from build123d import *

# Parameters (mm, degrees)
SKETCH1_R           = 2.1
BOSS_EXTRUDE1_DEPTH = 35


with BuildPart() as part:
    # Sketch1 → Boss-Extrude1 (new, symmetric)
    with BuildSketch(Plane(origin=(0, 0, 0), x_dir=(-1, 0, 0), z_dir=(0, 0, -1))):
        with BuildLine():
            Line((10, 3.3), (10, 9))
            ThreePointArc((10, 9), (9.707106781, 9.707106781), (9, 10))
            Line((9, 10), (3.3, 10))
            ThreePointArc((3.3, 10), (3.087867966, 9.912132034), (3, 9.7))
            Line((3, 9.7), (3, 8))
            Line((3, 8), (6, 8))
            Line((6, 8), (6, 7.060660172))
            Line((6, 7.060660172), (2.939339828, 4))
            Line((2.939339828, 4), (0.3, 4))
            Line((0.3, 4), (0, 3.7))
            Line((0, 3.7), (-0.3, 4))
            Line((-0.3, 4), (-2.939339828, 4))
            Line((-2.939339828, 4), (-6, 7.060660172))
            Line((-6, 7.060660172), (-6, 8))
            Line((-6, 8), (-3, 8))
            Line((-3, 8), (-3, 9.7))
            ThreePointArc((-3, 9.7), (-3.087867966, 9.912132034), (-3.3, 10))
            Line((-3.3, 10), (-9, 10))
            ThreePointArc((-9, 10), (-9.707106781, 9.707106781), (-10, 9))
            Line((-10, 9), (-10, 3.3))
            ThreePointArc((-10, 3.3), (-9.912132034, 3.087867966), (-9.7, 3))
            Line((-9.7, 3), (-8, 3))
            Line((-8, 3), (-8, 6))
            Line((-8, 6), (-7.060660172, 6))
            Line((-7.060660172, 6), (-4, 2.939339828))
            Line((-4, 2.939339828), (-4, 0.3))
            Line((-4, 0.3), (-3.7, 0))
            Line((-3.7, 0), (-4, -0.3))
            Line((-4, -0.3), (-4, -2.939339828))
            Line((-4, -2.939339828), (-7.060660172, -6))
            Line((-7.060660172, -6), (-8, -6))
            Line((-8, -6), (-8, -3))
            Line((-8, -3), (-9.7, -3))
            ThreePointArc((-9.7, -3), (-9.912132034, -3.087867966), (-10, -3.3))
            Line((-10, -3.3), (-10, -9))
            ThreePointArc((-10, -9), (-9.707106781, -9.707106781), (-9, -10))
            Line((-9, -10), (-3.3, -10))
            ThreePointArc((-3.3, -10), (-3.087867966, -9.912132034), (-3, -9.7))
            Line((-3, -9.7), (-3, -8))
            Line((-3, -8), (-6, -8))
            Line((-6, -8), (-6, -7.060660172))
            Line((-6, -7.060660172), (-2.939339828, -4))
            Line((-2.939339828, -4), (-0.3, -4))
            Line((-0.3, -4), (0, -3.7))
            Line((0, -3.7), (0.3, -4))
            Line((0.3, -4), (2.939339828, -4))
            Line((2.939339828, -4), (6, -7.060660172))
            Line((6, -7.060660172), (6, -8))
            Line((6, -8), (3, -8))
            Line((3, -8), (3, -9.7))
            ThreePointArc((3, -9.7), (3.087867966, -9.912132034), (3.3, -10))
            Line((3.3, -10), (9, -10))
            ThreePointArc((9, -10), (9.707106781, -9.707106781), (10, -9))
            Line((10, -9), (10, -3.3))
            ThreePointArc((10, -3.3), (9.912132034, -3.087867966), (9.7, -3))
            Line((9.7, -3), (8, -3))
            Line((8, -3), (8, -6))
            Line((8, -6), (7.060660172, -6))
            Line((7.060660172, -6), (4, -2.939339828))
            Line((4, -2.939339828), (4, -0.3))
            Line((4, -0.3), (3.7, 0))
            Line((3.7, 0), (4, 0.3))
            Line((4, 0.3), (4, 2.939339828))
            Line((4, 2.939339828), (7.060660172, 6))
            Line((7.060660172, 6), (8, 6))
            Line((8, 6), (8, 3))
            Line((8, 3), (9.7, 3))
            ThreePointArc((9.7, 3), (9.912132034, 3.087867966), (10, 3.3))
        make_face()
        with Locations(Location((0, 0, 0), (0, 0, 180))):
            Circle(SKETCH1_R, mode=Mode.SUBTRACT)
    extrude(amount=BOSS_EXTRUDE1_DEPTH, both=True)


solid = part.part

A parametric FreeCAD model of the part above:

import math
import FreeCAD as App
import Part
import Sketcher
Q = App.Units.Quantity

doc = App.newDocument("Part")
body = doc.addObject("PartDesign::Body", "Body")

# Sketch on XY plane
sketch1 = body.newObject("Sketcher::SketchObject", "Sketch")
sketch1.AttachmentSupport = (doc.getObject("XY_Plane"), [""])
sketch1.MapMode = "FlatFace"
sketch1.addGeometry([
    Part.LineSegment(App.Vector(-10, 3.3, 0), App.Vector(-10, 9, 0)),  # 0
    Part.ArcOfCircle(Part.Circle(App.Vector(-9, 9, 0), App.Vector(0, 0, 1), 1), math.radians(90), math.radians(180)),  # 1
    Part.LineSegment(App.Vector(-9, 10, 0), App.Vector(-3.3, 10, 0)),  # 2
    Part.ArcOfCircle(Part.Circle(App.Vector(-3.3, 9.7, 0), App.Vector(0, 0, 1), 0.3), math.radians(0), math.radians(90)),  # 3
    Part.LineSegment(App.Vector(-3, 9.7, 0), App.Vector(-3, 8, 0)),  # 4
    Part.LineSegment(App.Vector(-3, 8, 0), App.Vector(-6, 8, 0)),  # 5
    Part.LineSegment(App.Vector(-6, 8, 0), App.Vector(-6, 7.06066, 0)),  # 6
    Part.LineSegment(App.Vector(-6, 7.06066, 0), App.Vector(-2.93934, 4, 0)),  # 7
    Part.LineSegment(App.Vector(-2.93934, 4, 0), App.Vector(-0.3, 4, 0)),  # 8
    Part.LineSegment(App.Vector(-0.3, 4, 0), App.Vector(0, 3.7, 0)),  # 9
    Part.LineSegment(App.Vector(0, 3.7, 0), App.Vector(0.3, 4, 0)),  # 10
    Part.LineSegment(App.Vector(0.3, 4, 0), App.Vector(2.93934, 4, 0)),  # 11
    Part.LineSegment(App.Vector(2.93934, 4, 0), App.Vector(6, 7.06066, 0)),  # 12
    Part.LineSegment(App.Vector(6, 7.06066, 0), App.Vector(6, 8, 0)),  # 13
    Part.LineSegment(App.Vector(6, 8, 0), App.Vector(3, 8, 0)),  # 14
    Part.LineSegment(App.Vector(3, 8, 0), App.Vector(3, 9.7, 0)),  # 15
    Part.ArcOfCircle(Part.Circle(App.Vector(3.3, 9.7, 0), App.Vector(0, 0, 1), 0.3), math.radians(90), math.radians(180)),  # 16
    Part.LineSegment(App.Vector(3.3, 10, 0), App.Vector(9, 10, 0)),  # 17
    Part.ArcOfCircle(Part.Circle(App.Vector(9, 9, 0), App.Vector(0, 0, 1), 1), math.radians(0), math.radians(90)),  # 18
    Part.LineSegment(App.Vector(10, 9, 0), App.Vector(10, 3.3, 0)),  # 19
    Part.ArcOfCircle(Part.Circle(App.Vector(9.7, 3.3, 0), App.Vector(0, 0, 1), 0.3), math.radians(-90), math.radians(0)),  # 20
    Part.LineSegment(App.Vector(9.7, 3, 0), App.Vector(8, 3, 0)),  # 21
    Part.LineSegment(App.Vector(8, 3, 0), App.Vector(8, 6, 0)),  # 22
    Part.LineSegment(App.Vector(8, 6, 0), App.Vector(7.06066, 6, 0)),  # 23
    Part.LineSegment(App.Vector(7.06066, 6, 0), App.Vector(4, 2.93934, 0)),  # 24
    Part.LineSegment(App.Vector(4, 2.93934, 0), App.Vector(4, 0.3, 0)),  # 25
    Part.LineSegment(App.Vector(4, 0.3, 0), App.Vector(3.7, 0, 0)),  # 26
    Part.LineSegment(App.Vector(3.7, 0, 0), App.Vector(4, -0.3, 0)),  # 27
    Part.LineSegment(App.Vector(4, -0.3, 0), App.Vector(4, -2.93934, 0)),  # 28
    Part.LineSegment(App.Vector(4, -2.93934, 0), App.Vector(7.06066, -6, 0)),  # 29
    Part.LineSegment(App.Vector(7.06066, -6, 0), App.Vector(8, -6, 0)),  # 30
    Part.LineSegment(App.Vector(8, -6, 0), App.Vector(8, -3, 0)),  # 31
    Part.LineSegment(App.Vector(8, -3, 0), App.Vector(9.7, -3, 0)),  # 32
    Part.ArcOfCircle(Part.Circle(App.Vector(9.7, -3.3, 0), App.Vector(0, 0, 1), 0.3), math.radians(0), math.radians(90)),  # 33
    Part.LineSegment(App.Vector(10, -3.3, 0), App.Vector(10, -9, 0)),  # 34
    Part.ArcOfCircle(Part.Circle(App.Vector(9, -9, 0), App.Vector(0, 0, 1), 1), math.radians(-90), math.radians(0)),  # 35
    Part.LineSegment(App.Vector(9, -10, 0), App.Vector(3.3, -10, 0)),  # 36
    Part.ArcOfCircle(Part.Circle(App.Vector(3.3, -9.7, 0), App.Vector(0, 0, 1), 0.3), math.radians(-180), math.radians(-90)),  # 37
    Part.LineSegment(App.Vector(3, -9.7, 0), App.Vector(3, -8, 0)),  # 38
    Part.LineSegment(App.Vector(3, -8, 0), App.Vector(6, -8, 0)),  # 39
    Part.LineSegment(App.Vector(6, -8, 0), App.Vector(6, -7.06066, 0)),  # 40
    Part.LineSegment(App.Vector(6, -7.06066, 0), App.Vector(2.93934, -4, 0)),  # 41
    Part.LineSegment(App.Vector(2.93934, -4, 0), App.Vector(0.3, -4, 0)),  # 42
    Part.LineSegment(App.Vector(0.3, -4, 0), App.Vector(0, -3.7, 0)),  # 43
    Part.LineSegment(App.Vector(0, -3.7, 0), App.Vector(-0.3, -4, 0)),  # 44
    Part.LineSegment(App.Vector(-0.3, -4, 0), App.Vector(-2.93934, -4, 0)),  # 45
    Part.LineSegment(App.Vector(-2.93934, -4, 0), App.Vector(-6, -7.06066, 0)),  # 46
    Part.LineSegment(App.Vector(-6, -7.06066, 0), App.Vector(-6, -8, 0)),  # 47
    Part.LineSegment(App.Vector(-6, -8, 0), App.Vector(-3, -8, 0)),  # 48
    Part.LineSegment(App.Vector(-3, -8, 0), App.Vector(-3, -9.7, 0)),  # 49
    Part.ArcOfCircle(Part.Circle(App.Vector(-3.3, -9.7, 0), App.Vector(0, 0, 1), 0.3), math.radians(-90), math.radians(0)),  # 50
    Part.LineSegment(App.Vector(-3.3, -10, 0), App.Vector(-9, -10, 0)),  # 51
    Part.ArcOfCircle(Part.Circle(App.Vector(-9, -9, 0), App.Vector(0, 0, 1), 1), math.radians(-180), math.radians(-90)),  # 52
    Part.LineSegment(App.Vector(-10, -9, 0), App.Vector(-10, -3.3, 0)),  # 53
    Part.ArcOfCircle(Part.Circle(App.Vector(-9.7, -3.3, 0), App.Vector(0, 0, 1), 0.3), math.radians(90), math.radians(180)),  # 54
    Part.LineSegment(App.Vector(-9.7, -3, 0), App.Vector(-8, -3, 0)),  # 55
    Part.LineSegment(App.Vector(-8, -3, 0), App.Vector(-8, -6, 0)),  # 56
    Part.LineSegment(App.Vector(-8, -6, 0), App.Vector(-7.06066, -6, 0)),  # 57
    Part.LineSegment(App.Vector(-7.06066, -6, 0), App.Vector(-4, -2.93934, 0)),  # 58
    Part.LineSegment(App.Vector(-4, -2.93934, 0), App.Vector(-4, -0.3, 0)),  # 59
    Part.LineSegment(App.Vector(-4, -0.3, 0), App.Vector(-3.7, 0, 0)),  # 60
    Part.LineSegment(App.Vector(-3.7, 0, 0), App.Vector(-4, 0.3, 0)),  # 61
    Part.LineSegment(App.Vector(-4, 0.3, 0), App.Vector(-4, 2.93934, 0)),  # 62
    Part.LineSegment(App.Vector(-4, 2.93934, 0), App.Vector(-7.06066, 6, 0)),  # 63
    Part.LineSegment(App.Vector(-7.06066, 6, 0), App.Vector(-8, 6, 0)),  # 64
    Part.LineSegment(App.Vector(-8, 6, 0), App.Vector(-8, 3, 0)),  # 65
    Part.LineSegment(App.Vector(-8, 3, 0), App.Vector(-9.7, 3, 0)),  # 66
    Part.ArcOfCircle(Part.Circle(App.Vector(-9.7, 3.3, 0), App.Vector(0, 0, 1), 0.3), math.radians(-180), math.radians(-90)),  # 67
    Part.Circle(App.Vector(0, 0, 0), App.Vector(0, 0, 1), 2.1),  # 68
], False)
sketch1.addConstraint([
    Sketcher.Constraint("Tangent", 0, 2, 1, 2),
    Sketcher.Constraint("Tangent", 1, 1, 2, 1),
    Sketcher.Constraint("Tangent", 2, 2, 3, 2),
    Sketcher.Constraint("Tangent", 3, 1, 4, 1),
    Sketcher.Constraint("Coincident", 4, 2, 5, 1),
    Sketcher.Constraint("Coincident", 5, 2, 6, 1),
    Sketcher.Constraint("Coincident", 6, 2, 7, 1),
    Sketcher.Constraint("Coincident", 7, 2, 8, 1),
    Sketcher.Constraint("Coincident", 8, 2, 9, 1),
    Sketcher.Constraint("Coincident", 9, 2, 10, 1),
    Sketcher.Constraint("Coincident", 10, 2, 11, 1),
    Sketcher.Constraint("Coincident", 11, 2, 12, 1),
    Sketcher.Constraint("Coincident", 12, 2, 13, 1),
    Sketcher.Constraint("Coincident", 13, 2, 14, 1),
    Sketcher.Constraint("Coincident", 14, 2, 15, 1),
    Sketcher.Constraint("Tangent", 15, 2, 16, 2),
    Sketcher.Constraint("Tangent", 16, 1, 17, 1),
    Sketcher.Constraint("Tangent", 17, 2, 18, 2),
    Sketcher.Constraint("Tangent", 18, 1, 19, 1),
    Sketcher.Constraint("Tangent", 19, 2, 20, 2),
    Sketcher.Constraint("Tangent", 20, 1, 21, 1),
    Sketcher.Constraint("Coincident", 21, 2, 22, 1),
    Sketcher.Constraint("Coincident", 22, 2, 23, 1),
    Sketcher.Constraint("Coincident", 23, 2, 24, 1),
    Sketcher.Constraint("Coincident", 24, 2, 25, 1),
    Sketcher.Constraint("Coincident", 25, 2, 26, 1),
    Sketcher.Constraint("Coincident", 26, 2, 27, 1),
    Sketcher.Constraint("Coincident", 27, 2, 28, 1),
    Sketcher.Constraint("Coincident", 28, 2, 29, 1),
    Sketcher.Constraint("Coincident", 29, 2, 30, 1),
    Sketcher.Constraint("Coincident", 30, 2, 31, 1),
    Sketcher.Constraint("Coincident", 31, 2, 32, 1),
    Sketcher.Constraint("Tangent", 32, 2, 33, 2),
    Sketcher.Constraint("Tangent", 33, 1, 34, 1),
    Sketcher.Constraint("Tangent", 34, 2, 35, 2),
    Sketcher.Constraint("Tangent", 35, 1, 36, 1),
    Sketcher.Constraint("Tangent", 36, 2, 37, 2),
    Sketcher.Constraint("Tangent", 37, 1, 38, 1),
    Sketcher.Constraint("Coincident", 38, 2, 39, 1),
    Sketcher.Constraint("Coincident", 39, 2, 40, 1),
    Sketcher.Constraint("Coincident", 40, 2, 41, 1),
    Sketcher.Constraint("Coincident", 41, 2, 42, 1),
    Sketcher.Constraint("Coincident", 42, 2, 43, 1),
    Sketcher.Constraint("Coincident", 43, 2, 44, 1),
    Sketcher.Constraint("Coincident", 44, 2, 45, 1),
    Sketcher.Constraint("Coincident", 45, 2, 46, 1),
    Sketcher.Constraint("Coincident", 46, 2, 47, 1),
    Sketcher.Constraint("Coincident", 47, 2, 48, 1),
    Sketcher.Constraint("Coincident", 48, 2, 49, 1),
    Sketcher.Constraint("Tangent", 49, 2, 50, 2),
    Sketcher.Constraint("Tangent", 50, 1, 51, 1),
    Sketcher.Constraint("Tangent", 51, 2, 52, 2),
    Sketcher.Constraint("Tangent", 52, 1, 53, 1),
    Sketcher.Constraint("Tangent", 53, 2, 54, 2),
    Sketcher.Constraint("Tangent", 54, 1, 55, 1),
    Sketcher.Constraint("Coincident", 55, 2, 56, 1),
    Sketcher.Constraint("Coincident", 56, 2, 57, 1),
    Sketcher.Constraint("Coincident", 57, 2, 58, 1),
    Sketcher.Constraint("Coincident", 58, 2, 59, 1),
    Sketcher.Constraint("Coincident", 59, 2, 60, 1),
    Sketcher.Constraint("Coincident", 60, 2, 61, 1),
    Sketcher.Constraint("Coincident", 61, 2, 62, 1),
    Sketcher.Constraint("Coincident", 62, 2, 63, 1),
    Sketcher.Constraint("Coincident", 63, 2, 64, 1),
    Sketcher.Constraint("Coincident", 64, 2, 65, 1),
    Sketcher.Constraint("Coincident", 65, 2, 66, 1),
    Sketcher.Constraint("Tangent", 66, 2, 67, 2),
    Sketcher.Constraint("Tangent", 67, 1, 0, 1),
    Sketcher.Constraint("Vertical", 0),
    Sketcher.Constraint("Horizontal", 2),
    Sketcher.Constraint("Vertical", 4),
    Sketcher.Constraint("Horizontal", 5),
    Sketcher.Constraint("Vertical", 6),
    Sketcher.Constraint("Horizontal", 8),
    Sketcher.Constraint("Horizontal", 11),
    Sketcher.Constraint("Vertical", 13),
    Sketcher.Constraint("Horizontal", 14),
    Sketcher.Constraint("Vertical", 15),
    Sketcher.Constraint("Horizontal", 17),
    Sketcher.Constraint("Vertical", 19),
    Sketcher.Constraint("Horizontal", 21),
    Sketcher.Constraint("Vertical", 22),
    Sketcher.Constraint("Horizontal", 23),
    Sketcher.Constraint("Vertical", 25),
    Sketcher.Constraint("Vertical", 28),
    Sketcher.Constraint("Horizontal", 30),
    Sketcher.Constraint("Vertical", 31),
    Sketcher.Constraint("Horizontal", 32),
    Sketcher.Constraint("Vertical", 34),
    Sketcher.Constraint("Horizontal", 36),
    Sketcher.Constraint("Vertical", 38),
    Sketcher.Constraint("Horizontal", 39),
    Sketcher.Constraint("Vertical", 40),
    Sketcher.Constraint("Horizontal", 42),
    Sketcher.Constraint("Horizontal", 45),
    Sketcher.Constraint("Vertical", 47),
    Sketcher.Constraint("Horizontal", 48),
    Sketcher.Constraint("Vertical", 49),
    Sketcher.Constraint("Horizontal", 51),
    Sketcher.Constraint("Vertical", 53),
    Sketcher.Constraint("Horizontal", 55),
    Sketcher.Constraint("Vertical", 56),
    Sketcher.Constraint("Horizontal", 57),
    Sketcher.Constraint("Vertical", 59),
    Sketcher.Constraint("Vertical", 62),
    Sketcher.Constraint("Horizontal", 64),
    Sketcher.Constraint("Vertical", 65),
    Sketcher.Constraint("Horizontal", 66),
    Sketcher.Constraint("Coincident", 68, 3, -1, 1),
    Sketcher.Constraint("Equal", 3, 16),
    Sketcher.Constraint("Equal", 1, 18),
    Sketcher.Constraint("Equal", 16, 20),
    Sketcher.Constraint("Equal", 20, 33),
    Sketcher.Constraint("Equal", 18, 35),
    Sketcher.Constraint("Equal", 33, 37),
    Sketcher.Constraint("Equal", 37, 50),
    Sketcher.Constraint("Equal", 35, 52),
    Sketcher.Constraint("Equal", 50, 54),
    Sketcher.Constraint("Equal", 54, 67),
    Sketcher.Constraint("Symmetric", 1, 3, 35, 3, -1, 1),
    Sketcher.Constraint("Symmetric", 16, 3, 50, 3, -1, 1),
    Sketcher.Constraint("Symmetric", 20, 3, 54, 3, -1, 1),
    Sketcher.Constraint("Symmetric", 4, 2, 38, 2, -1, 1),
    Sketcher.Constraint("Symmetric", 6, 2, 40, 2, -1, 1),
    Sketcher.Constraint("Symmetric", 7, 2, 41, 2, -1, 1),
    Sketcher.Constraint("Symmetric", 9, 2, 43, 2, -1, 1),
    Sketcher.Constraint("Symmetric", 10, 2, 44, 2, -1, 1),
    Sketcher.Constraint("Symmetric", 12, 2, 46, 2, -1, 1),
    Sketcher.Constraint("Symmetric", 22, 2, 56, 2, -1, 1),
    Sketcher.Constraint("Symmetric", 24, 2, 58, 2, -1, 1),
    Sketcher.Constraint("Symmetric", 26, 2, 60, 2, -1, 1),
    Sketcher.Constraint("Symmetric", 27, 2, 61, 2, -1, 1),
    Sketcher.Constraint("Symmetric", 29, 2, 63, 2, -1, 1),
    Sketcher.Constraint("Symmetric", 31, 2, 65, 2, -1, 1),
    Sketcher.Constraint("Symmetric", 3, 3, 16, 3, -2),
    Sketcher.Constraint("Symmetric", 33, 3, 54, 3, -2),
    Sketcher.Constraint("Symmetric", 8, 2, 10, 2, -2),
    Sketcher.Constraint("Symmetric", 6, 2, 12, 2, -2),
    Sketcher.Constraint("Symmetric", 30, 2, 56, 2, -2),
    Sketcher.Constraint("Symmetric", 28, 2, 58, 2, -2),
    Sketcher.Constraint("PointOnObject", 9, 2, -2),
    Sketcher.Constraint("PointOnObject", 26, 2, -1),
    Sketcher.Constraint("Parallel", 7, 9),
    Sketcher.Constraint("Perpendicular", 9, 10),
    Sketcher.Constraint("Parallel", 10, 12),
    Sketcher.Constraint("Parallel", 12, 24),
    Sketcher.Constraint("Parallel", 24, 26),
    Sketcher.Constraint("Perpendicular", 26, 27),
    Sketcher.Constraint("Parallel", 27, 29),
    Sketcher.Constraint("Parallel", 41, 43),
    Sketcher.Constraint("Parallel", 44, 46),
    Sketcher.Constraint("Parallel", 46, 58),
    Sketcher.Constraint("Parallel", 58, 60),
    Sketcher.Constraint("Parallel", 61, 63),
    Sketcher.Constraint("Horizontal", 5, 2, 13, 2),
    Sketcher.Constraint("Horizontal", 39, 2, 47, 2),
    Sketcher.Constraint("Equal", 51, 0),
    Sketcher.Constraint("Equal", 66, 4),
    Sketcher.Constraint("Equal", 64, 6),
    Sketcher.Constraint("Equal", 48, 22),
    Sketcher.Constraint("Equal", 45, 25),
    Sketcher.Constraint("Equal", 12, 24),
    Sketcher.Constraint("Equal", 10, 26),
    Sketcher.Constraint("Radius", 1, Q("1 mm")),
    Sketcher.Constraint("Diameter", 68, Q("4.2 mm")),
    Sketcher.Constraint("Radius", 3, Q("0.3 mm")),
    Sketcher.Constraint("DistanceX", 5, 2, 5, 1, Q("3 mm")),
    Sketcher.Constraint("DistanceX", 2, 1, 2, 2, Q("5.7 mm")),
    Sketcher.Constraint("DistanceX", 21, 2, 21, 1, Q("1.7 mm")),
    Sketcher.Constraint("DistanceX", 1, 3, -1, 1, Q("9 mm")),
    Sketcher.Constraint("DistanceY", -1, 1, 7, 2, Q("4 mm")),
    Sketcher.Constraint("DistanceX", 8, 2, -1, 1, Q("0.3 mm")),
    Sketcher.Constraint("DistanceX", 8, 1, 8, 2, Q("2.63934 mm")),
])
pad1 = body.newObject("PartDesign::Pad", "Pad")
pad1.Profile = sketch1
pad1.Length = 70
pad1.Midplane = True

doc.recompute()
